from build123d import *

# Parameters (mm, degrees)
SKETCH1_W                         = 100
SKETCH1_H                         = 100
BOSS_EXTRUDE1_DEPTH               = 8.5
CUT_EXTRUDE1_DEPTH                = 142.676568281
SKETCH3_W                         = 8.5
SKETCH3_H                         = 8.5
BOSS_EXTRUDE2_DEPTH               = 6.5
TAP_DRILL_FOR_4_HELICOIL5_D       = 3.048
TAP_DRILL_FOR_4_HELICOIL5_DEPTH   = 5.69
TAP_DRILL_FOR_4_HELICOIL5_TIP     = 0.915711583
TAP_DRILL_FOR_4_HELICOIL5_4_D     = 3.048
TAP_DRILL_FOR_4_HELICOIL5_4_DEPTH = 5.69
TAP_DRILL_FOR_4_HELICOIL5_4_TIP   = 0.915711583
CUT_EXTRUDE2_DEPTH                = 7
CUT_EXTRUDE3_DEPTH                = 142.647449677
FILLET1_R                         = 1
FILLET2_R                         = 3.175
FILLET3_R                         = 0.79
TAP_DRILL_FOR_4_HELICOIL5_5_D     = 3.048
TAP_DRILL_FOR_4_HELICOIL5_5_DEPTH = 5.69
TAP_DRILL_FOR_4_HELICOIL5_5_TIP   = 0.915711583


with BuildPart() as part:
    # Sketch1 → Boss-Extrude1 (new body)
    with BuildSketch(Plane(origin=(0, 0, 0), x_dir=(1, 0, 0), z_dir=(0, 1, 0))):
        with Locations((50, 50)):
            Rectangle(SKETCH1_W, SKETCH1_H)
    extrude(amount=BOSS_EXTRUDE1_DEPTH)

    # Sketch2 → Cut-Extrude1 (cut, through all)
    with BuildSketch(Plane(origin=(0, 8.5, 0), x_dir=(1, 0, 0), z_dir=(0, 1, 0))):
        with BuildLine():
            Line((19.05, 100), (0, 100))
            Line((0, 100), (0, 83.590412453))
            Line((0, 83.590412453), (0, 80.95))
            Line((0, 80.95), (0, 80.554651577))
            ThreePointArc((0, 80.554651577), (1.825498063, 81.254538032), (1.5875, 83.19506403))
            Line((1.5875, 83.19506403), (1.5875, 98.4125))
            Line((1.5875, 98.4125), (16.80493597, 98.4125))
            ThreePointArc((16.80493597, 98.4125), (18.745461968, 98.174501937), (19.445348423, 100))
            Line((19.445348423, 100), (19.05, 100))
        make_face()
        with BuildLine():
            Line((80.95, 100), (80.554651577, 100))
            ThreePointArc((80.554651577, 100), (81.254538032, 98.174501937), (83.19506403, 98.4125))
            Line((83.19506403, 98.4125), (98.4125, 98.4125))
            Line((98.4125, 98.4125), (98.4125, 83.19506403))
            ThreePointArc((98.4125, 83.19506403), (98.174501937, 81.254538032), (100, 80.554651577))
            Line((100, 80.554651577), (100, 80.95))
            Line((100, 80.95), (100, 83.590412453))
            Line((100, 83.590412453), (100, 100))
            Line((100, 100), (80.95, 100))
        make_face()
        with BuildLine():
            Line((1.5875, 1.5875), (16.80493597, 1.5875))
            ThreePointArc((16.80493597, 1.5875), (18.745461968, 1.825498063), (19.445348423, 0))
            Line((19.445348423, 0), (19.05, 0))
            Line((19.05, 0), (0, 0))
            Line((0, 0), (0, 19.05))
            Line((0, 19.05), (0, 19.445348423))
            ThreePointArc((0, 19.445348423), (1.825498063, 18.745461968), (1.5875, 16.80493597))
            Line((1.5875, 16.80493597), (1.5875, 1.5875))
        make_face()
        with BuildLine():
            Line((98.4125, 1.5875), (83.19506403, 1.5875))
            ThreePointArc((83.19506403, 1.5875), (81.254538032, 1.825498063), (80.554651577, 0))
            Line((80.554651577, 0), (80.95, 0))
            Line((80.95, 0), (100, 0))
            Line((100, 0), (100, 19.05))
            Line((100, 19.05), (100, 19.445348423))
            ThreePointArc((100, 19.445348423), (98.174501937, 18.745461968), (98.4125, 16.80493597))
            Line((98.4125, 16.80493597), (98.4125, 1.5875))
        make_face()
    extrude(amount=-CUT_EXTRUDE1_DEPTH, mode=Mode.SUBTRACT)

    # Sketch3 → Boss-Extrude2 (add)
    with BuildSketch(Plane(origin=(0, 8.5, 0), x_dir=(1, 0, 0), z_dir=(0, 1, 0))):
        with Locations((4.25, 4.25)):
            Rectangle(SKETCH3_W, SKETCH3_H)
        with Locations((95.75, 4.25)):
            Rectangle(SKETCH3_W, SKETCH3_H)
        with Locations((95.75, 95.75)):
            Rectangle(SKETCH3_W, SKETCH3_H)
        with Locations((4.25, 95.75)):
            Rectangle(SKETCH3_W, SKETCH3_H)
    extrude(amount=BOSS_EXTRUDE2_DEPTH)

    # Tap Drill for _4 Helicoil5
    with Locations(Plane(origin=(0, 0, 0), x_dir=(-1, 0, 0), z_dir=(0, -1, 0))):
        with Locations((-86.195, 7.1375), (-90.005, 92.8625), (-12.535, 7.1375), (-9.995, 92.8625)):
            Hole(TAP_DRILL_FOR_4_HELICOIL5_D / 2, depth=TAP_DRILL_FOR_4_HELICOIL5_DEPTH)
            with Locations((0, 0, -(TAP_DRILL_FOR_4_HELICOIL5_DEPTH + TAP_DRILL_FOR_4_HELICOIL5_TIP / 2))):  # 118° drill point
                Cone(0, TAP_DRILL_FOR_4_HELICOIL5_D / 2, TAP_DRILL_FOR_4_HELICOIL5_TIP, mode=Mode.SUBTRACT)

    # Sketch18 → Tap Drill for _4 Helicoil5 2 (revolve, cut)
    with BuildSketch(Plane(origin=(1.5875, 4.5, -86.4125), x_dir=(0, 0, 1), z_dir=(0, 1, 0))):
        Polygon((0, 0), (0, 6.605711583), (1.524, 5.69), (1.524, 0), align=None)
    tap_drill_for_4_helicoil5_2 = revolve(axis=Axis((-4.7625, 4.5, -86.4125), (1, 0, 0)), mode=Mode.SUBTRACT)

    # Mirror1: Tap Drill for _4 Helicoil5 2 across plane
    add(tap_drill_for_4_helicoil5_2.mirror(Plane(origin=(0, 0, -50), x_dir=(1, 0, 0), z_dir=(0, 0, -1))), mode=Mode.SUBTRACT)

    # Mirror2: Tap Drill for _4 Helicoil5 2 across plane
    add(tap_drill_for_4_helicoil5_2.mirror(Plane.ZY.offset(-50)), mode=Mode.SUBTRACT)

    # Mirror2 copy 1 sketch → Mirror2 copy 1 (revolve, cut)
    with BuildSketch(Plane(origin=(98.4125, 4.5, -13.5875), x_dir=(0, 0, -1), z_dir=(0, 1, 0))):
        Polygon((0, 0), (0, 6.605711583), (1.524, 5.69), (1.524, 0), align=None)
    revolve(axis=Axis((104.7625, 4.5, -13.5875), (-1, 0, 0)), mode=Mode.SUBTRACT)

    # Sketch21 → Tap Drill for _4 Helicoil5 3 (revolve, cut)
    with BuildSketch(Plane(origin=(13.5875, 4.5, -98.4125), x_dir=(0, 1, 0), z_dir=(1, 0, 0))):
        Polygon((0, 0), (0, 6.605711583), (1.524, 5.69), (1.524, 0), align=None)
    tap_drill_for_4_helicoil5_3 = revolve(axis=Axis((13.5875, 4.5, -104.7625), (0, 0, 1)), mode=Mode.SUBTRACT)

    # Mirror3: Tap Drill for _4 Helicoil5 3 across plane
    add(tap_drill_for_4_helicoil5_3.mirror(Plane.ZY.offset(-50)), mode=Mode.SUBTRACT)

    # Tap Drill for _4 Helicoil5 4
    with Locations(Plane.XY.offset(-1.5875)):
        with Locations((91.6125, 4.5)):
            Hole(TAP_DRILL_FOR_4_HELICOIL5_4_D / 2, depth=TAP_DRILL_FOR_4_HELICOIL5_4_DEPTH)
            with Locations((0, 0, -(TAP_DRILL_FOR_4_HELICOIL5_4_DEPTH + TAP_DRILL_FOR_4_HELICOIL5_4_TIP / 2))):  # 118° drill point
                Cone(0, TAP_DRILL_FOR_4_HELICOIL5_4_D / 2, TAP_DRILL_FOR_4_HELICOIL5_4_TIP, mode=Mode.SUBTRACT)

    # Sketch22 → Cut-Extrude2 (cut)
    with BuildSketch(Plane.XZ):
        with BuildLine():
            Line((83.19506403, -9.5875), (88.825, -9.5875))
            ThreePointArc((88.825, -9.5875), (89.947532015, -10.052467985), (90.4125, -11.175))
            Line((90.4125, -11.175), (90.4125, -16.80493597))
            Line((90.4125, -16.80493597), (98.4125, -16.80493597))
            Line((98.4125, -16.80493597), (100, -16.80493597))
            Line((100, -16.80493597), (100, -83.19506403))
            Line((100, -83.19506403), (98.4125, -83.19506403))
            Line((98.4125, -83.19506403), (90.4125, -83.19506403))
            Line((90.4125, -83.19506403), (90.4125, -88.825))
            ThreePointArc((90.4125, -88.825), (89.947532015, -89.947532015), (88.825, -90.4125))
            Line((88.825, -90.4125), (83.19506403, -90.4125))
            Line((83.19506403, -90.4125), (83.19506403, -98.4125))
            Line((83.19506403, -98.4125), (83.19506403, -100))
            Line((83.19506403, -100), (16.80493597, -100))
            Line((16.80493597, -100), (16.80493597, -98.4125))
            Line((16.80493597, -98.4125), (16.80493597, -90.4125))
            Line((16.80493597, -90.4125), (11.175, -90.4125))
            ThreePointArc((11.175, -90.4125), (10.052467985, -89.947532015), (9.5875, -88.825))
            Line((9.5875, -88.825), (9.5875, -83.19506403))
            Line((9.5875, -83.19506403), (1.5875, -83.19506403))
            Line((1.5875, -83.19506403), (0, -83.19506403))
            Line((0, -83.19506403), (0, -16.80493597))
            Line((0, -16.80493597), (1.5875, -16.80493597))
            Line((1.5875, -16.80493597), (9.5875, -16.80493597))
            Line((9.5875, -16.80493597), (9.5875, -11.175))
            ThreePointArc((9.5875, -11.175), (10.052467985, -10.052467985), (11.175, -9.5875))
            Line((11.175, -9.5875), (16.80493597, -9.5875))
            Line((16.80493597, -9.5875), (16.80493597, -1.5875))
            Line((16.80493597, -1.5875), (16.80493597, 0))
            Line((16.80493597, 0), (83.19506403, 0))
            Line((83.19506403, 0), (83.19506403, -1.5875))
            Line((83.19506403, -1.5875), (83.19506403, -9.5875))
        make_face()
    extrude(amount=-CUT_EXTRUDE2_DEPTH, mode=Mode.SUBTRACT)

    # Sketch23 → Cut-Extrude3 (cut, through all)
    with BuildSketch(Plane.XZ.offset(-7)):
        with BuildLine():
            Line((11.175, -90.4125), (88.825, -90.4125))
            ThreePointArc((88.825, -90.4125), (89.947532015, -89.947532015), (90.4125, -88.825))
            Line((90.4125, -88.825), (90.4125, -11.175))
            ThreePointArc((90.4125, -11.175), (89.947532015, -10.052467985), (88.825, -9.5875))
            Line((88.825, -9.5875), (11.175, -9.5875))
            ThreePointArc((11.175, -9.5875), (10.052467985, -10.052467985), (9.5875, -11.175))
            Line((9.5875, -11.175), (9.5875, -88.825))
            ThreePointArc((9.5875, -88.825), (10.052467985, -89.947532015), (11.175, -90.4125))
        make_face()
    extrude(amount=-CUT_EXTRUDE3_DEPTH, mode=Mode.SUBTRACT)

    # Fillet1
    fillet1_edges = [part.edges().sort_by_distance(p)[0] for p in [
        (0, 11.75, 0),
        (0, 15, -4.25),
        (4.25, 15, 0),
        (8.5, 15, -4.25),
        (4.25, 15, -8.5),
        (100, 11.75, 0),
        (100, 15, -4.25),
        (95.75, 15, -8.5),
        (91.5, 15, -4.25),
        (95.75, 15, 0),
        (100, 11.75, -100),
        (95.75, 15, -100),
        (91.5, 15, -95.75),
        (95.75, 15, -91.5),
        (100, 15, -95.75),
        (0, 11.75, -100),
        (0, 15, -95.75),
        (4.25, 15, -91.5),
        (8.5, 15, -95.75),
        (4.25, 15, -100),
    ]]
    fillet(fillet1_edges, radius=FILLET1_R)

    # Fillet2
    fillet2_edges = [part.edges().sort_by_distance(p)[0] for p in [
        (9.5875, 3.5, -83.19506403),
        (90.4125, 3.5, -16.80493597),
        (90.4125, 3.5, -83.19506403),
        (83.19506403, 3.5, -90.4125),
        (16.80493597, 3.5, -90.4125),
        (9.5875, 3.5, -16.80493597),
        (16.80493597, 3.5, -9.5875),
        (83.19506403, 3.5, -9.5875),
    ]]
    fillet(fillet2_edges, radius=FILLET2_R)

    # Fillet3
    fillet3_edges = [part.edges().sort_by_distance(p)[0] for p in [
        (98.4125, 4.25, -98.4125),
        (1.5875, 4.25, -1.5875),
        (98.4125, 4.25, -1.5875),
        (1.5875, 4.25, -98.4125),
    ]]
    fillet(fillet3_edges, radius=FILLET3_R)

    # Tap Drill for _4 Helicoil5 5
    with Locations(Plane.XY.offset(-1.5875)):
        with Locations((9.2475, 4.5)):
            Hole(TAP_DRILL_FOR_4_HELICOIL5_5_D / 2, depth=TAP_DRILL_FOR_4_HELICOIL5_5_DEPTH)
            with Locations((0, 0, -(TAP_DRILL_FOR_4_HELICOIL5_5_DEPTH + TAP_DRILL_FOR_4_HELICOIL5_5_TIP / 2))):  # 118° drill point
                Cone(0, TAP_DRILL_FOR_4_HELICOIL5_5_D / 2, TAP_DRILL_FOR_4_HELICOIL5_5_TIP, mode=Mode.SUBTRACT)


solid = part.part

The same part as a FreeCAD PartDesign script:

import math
import FreeCAD as App
import Part
import Sketcher
Q = App.Units.Quantity


def edges_at(feature, points):
    """Names of the edges that pass closest to the given points."""
    edges = feature.Shape.Edges
    near = lambda p: min(range(len(edges)), key=lambda i: edges[i].distToShape(Part.Vertex(*p))[0])
    return sorted({f"Edge{near(p) + 1}" for p in points})


def add_polygon(sketch, points):
    """Adds a closed chain of lines whose ends are joined by coincident constraints."""
    first, n = sketch.GeometryCount, len(points)
    for a, b in zip(points, points[1:] + points[:1]):
        sketch.addGeometry(Part.LineSegment(App.Vector(*a, 0), App.Vector(*b, 0)), False)
    for i in range(n):
        sketch.addConstraint(Sketcher.Constraint("Coincident", first + i, 2, first + (i + 1) % n, 1))

doc = App.newDocument("Part")
body = doc.addObject("PartDesign::Body", "Body")

# Sketch on XZ plane
sketch1 = doc.addObject("Sketcher::SketchObject", "Sketch")
body.addObject(sketch1)
sketch1.AttachmentSupport = (doc.XZ_Plane, [""])
sketch1.MapMode = "FlatFace"
add_polygon(sketch1, [(0, -100), (0, 0), (100, 0), (100, -100)])  # lines 0-3
sketch1.addConstraint(Sketcher.Constraint("Vertical", 0))
sketch1.addConstraint(Sketcher.Constraint("Horizontal", 1))
sketch1.addConstraint(Sketcher.Constraint("Vertical", 2))
sketch1.addConstraint(Sketcher.Constraint("Horizontal", 3))
sketch1.addConstraint(Sketcher.Constraint("Coincident", 0, 2, -1, 1))
sketch1.addConstraint(Sketcher.Constraint("Equal", 3, 0))
sketch1.addConstraint(Sketcher.Constraint("DistanceX", 1, 1, 1, 2, 100.0))
pad1 = doc.addObject("PartDesign::Pad", "Pad")
body.addObject(pad1)
pad1.Profile = sketch1
pad1.Length = 8.5
pad1.Reversed = True

# Sketch on XZ plane
sketch2 = doc.addObject("Sketcher::SketchObject", "Sketch001")
body.addObject(sketch2)
sketch2.AttachmentSupport = (doc.XZ_Plane, [""])
sketch2.MapMode = "FlatFace"
sketch2.AttachmentOffset = App.Placement(App.Vector(0, 0, -8.5), App.Rotation())
sketch2.addGeometry(Part.LineSegment(App.Vector(0, -100, 0), App.Vector(0, -80.6, 0)), False)
sketch2.addGeometry(Part.ArcOfCircle(Part.Circle(App.Vector(0.5, -82.1, 0), App.Vector(0, 0, 1), 1.6), math.radians(-45), math.radians(107)), False)
sketch2.addGeometry(Part.LineSegment(App.Vector(1.6, -83.2, 0), App.Vector(1.6, -98.4, 0)), False)
sketch2.addGeometry(Part.LineSegment(App.Vector(1.6, -98.4, 0), App.Vector(16.8, -98.4, 0)), False)
sketch2.addGeometry(Part.ArcOfCircle(Part.Circle(App.Vector(17.9, -99.5, 0), App.Vector(0, 0, 1), 1.6), math.radians(-17), math.radians(135)), False)
sketch2.addGeometry(Part.LineSegment(App.Vector(19.4, -100, 0), App.Vector(0, -100, 0)), False)
sketch2.addGeometry(Part.ArcOfCircle(Part.Circle(App.Vector(82.1, -99.5, 0), App.Vector(0, 0, 1), 1.6), math.radians(45), math.radians(197)), False)
sketch2.addGeometry(Part.LineSegment(App.Vector(83.2, -98.4, 0), App.Vector(98.4, -98.4, 0)), False)
sketch2.addGeometry(Part.LineSegment(App.Vector(98.4, -98.4, 0), App.Vector(98.4, -83.2, 0)), False)
sketch2.addGeometry(Part.ArcOfCircle(Part.Circle(App.Vector(99.5, -82.1, 0), App.Vector(0, 0, 1), 1.6), math.radians(73), math.radians(225)), False)
sketch2.addGeometry(Part.LineSegment(App.Vector(100, -80.6, 0), App.Vector(100, -100, 0)), False)
sketch2.addGeometry(Part.LineSegment(App.Vector(100, -100, 0), App.Vector(80.6, -100, 0)), False)
sketch2.addGeometry(Part.LineSegment(App.Vector(16.8, -1.6, 0), App.Vector(1.6, -1.6, 0)), False)
sketch2.addGeometry(Part.LineSegment(App.Vector(1.6, -1.6, 0), App.Vector(1.6, -16.8, 0)), False)
sketch2.addGeometry(Part.ArcOfCircle(Part.Circle(App.Vector(0.5, -17.9, 0), App.Vector(0, 0, 1), 1.6), math.radians(-107), math.radians(45)), False)
sketch2.addGeometry(Part.LineSegment(App.Vector(0, -19.4, 0), App.Vector(0, 0, 0)), False)
sketch2.addGeometry(Part.LineSegment(App.Vector(0, 0, 0), App.Vector(19.4, 0, 0)), False)
sketch2.addGeometry(Part.ArcOfCircle(Part.Circle(App.Vector(17.9, -0.5, 0), App.Vector(0, 0, 1), 1.6), math.radians(-135), math.radians(17)), False)
sketch2.addGeometry(Part.LineSegment(App.Vector(98.4, -1.6, 0), App.Vector(83.2, -1.6, 0)), False)
sketch2.addGeometry(Part.ArcOfCircle(Part.Circle(App.Vector(82.1, -0.5, 0), App.Vector(0, 0, 1), 1.6), math.radians(163), math.radians(315)), False)
sketch2.addGeometry(Part.LineSegment(App.Vector(80.6, 0, 0), App.Vector(100, 0, 0)), False)
sketch2.addGeometry(Part.LineSegment(App.Vector(100, 0, 0), App.Vector(100, -19.4, 0)), False)
sketch2.addGeometry(Part.ArcOfCircle(Part.Circle(App.Vector(99.5, -17.9, 0), App.Vector(0, 0, 1), 1.6), math.radians(135), math.radians(287)), False)
sketch2.addGeometry(Part.LineSegment(App.Vector(98.4, -16.8, 0), App.Vector(98.4, -1.6, 0)), False)
sketch2.addConstraint(Sketcher.Constraint("Coincident", 0, 2, 1, 2))
sketch2.addConstraint(Sketcher.Constraint("Coincident", 1, 1, 2, 1))
sketch2.addConstraint(Sketcher.Constraint("Coincident", 2, 2, 3, 1))
sketch2.addConstraint(Sketcher.Constraint("Coincident", 3, 2, 4, 2))
sketch2.addConstraint(Sketcher.Constraint("Coincident", 4, 1, 5, 1))
sketch2.addConstraint(Sketcher.Constraint("Coincident", 5, 2, 0, 1))
sketch2.addConstraint(Sketcher.Constraint("Coincident", 6, 1, 7, 1))
sketch2.addConstraint(Sketcher.Constraint("Coincident", 7, 2, 8, 1))
sketch2.addConstraint(Sketcher.Constraint("Coincident", 8, 2, 9, 2))
sketch2.addConstraint(Sketcher.Constraint("Coincident", 9, 1, 10, 1))
sketch2.addConstraint(Sketcher.Constraint("Coincident", 10, 2, 11, 1))
sketch2.addConstraint(Sketcher.Constraint("Coincident", 11, 2, 6, 2))
sketch2.addConstraint(Sketcher.Constraint("Coincident", 12, 2, 13, 1))
sketch2.addConstraint(Sketcher.Constraint("Coincident", 13, 2, 14, 2))
sketch2.addConstraint(Sketcher.Constraint("Coincident", 14, 1, 15, 1))
sketch2.addConstraint(Sketcher.Constraint("Coincident", 15, 2, 16, 1))
sketch2.addConstraint(Sketcher.Constraint("Coincident", 16, 2, 17, 2))
sketch2.addConstraint(Sketcher.Constraint("Coincident", 17, 1, 12, 1))
sketch2.addConstraint(Sketcher.Constraint("Coincident", 18, 2, 19, 2))
sketch2.addConstraint(Sketcher.Constraint("Coincident", 19, 1, 20, 1))
sketch2.addConstraint(Sketcher.Constraint("Coincident", 20, 2, 21, 1))
sketch2.addConstraint(Sketcher.Constraint("Coincident", 21, 2, 22, 2))
sketch2.addConstraint(Sketcher.Constraint("Coincident", 22, 1, 23, 1))
sketch2.addConstraint(Sketcher.Constraint("Coincident", 23, 2, 18, 1))
sketch2.addConstraint(Sketcher.Constraint("Vertical", 0))
sketch2.addConstraint(Sketcher.Constraint("Vertical", 2))
sketch2.addConstraint(Sketcher.Constraint("Horizontal", 3))
sketch2.addConstraint(Sketcher.Constraint("Horizontal", 5))
sketch2.addConstraint(Sketcher.Constraint("Horizontal", 7))
sketch2.addConstraint(Sketcher.Constraint("Vertical", 8))
sketch2.addConstraint(Sketcher.Constraint("Vertical", 10))
sketch2.addConstraint(Sketcher.Constraint("Horizontal", 11))
sketch2.addConstraint(Sketcher.Constraint("Horizontal", 12))
sketch2.addConstraint(Sketcher.Constraint("Vertical", 13))
sketch2.addConstraint(Sketcher.Constraint("Vertical", 15))
sketch2.addConstraint(Sketcher.Constraint("Horizontal", 16))
sketch2.addConstraint(Sketcher.Constraint("Horizontal", 18))
sketch2.addConstraint(Sketcher.Constraint("Horizontal", 20))
sketch2.addConstraint(Sketcher.Constraint("Vertical", 21))
sketch2.addConstraint(Sketcher.Constraint("Vertical", 23))
sketch2.addConstraint(Sketcher.Constraint("Coincident", 15, 2, -1, 1))
sketch2.addConstraint(Sketcher.Constraint("Equal", 1, 4))
sketch2.addConstraint(Sketcher.Constraint("Equal", 4, 6))
sketch2.addConstraint(Sketcher.Constraint("Equal", 6, 9))
sketch2.addConstraint(Sketcher.Constraint("Equal", 9, 14))
sketch2.addConstraint(Sketcher.Constraint("Equal", 14, 17))
sketch2.addConstraint(Sketcher.Constraint("Equal", 17, 19))
sketch2.addConstraint(Sketcher.Constraint("Equal", 19, 22))
sketch2.addConstraint(Sketcher.Constraint("PointOnObject", 0, 2, -2))
sketch2.addConstraint(Sketcher.Constraint("PointOnObject", 19, 1, -1))
sketch2.addConstraint(Sketcher.Constraint("Horizontal", 4, 3, 6, 3))
sketch2.addConstraint(Sketcher.Constraint("Horizontal", 1, 3, 9, 3))
sketch2.addConstraint(Sketcher.Constraint("Horizontal", 17, 3, 19, 3))
sketch2.addConstraint(Sketcher.Constraint("Horizontal", 14, 3, 22, 3))
sketch2.addConstraint(Sketcher.Constraint("Horizontal", 3, 2, 6, 1))
sketch2.addConstraint(Sketcher.Constraint("Horizontal", 1, 1, 8, 2))
sketch2.addConstraint(Sketcher.Constraint("Horizontal", 0, 2, 9, 1))
sketch2.addConstraint(Sketcher.Constraint("Horizontal", 5, 2, 10, 2))
sketch2.addConstraint(Sketcher.Constraint("Horizontal", 17, 1, 18, 2))
sketch2.addConstraint(Sketcher.Constraint("Horizontal", 14, 1, 21, 2))
sketch2.addConstraint(Sketcher.Constraint("Horizontal", 13, 2, 22, 1))
sketch2.addConstraint(Sketcher.Constraint("Vertical", 1, 3, 14, 3))
sketch2.addConstraint(Sketcher.Constraint("Vertical", 4, 3, 17, 3))
sketch2.addConstraint(Sketcher.Constraint("Vertical", 6, 3, 19, 3))
sketch2.addConstraint(Sketcher.Constraint("Vertical", 9, 3, 22, 3))
sketch2.addConstraint(Sketcher.Constraint("Vertical", 2, 2, 12, 2))
sketch2.addConstraint(Sketcher.Constraint("Vertical", 4, 1, 16, 2))
sketch2.addConstraint(Sketcher.Constraint("Vertical", 3, 2, 17, 1))
sketch2.addConstraint(Sketcher.Constraint("Equal", 3, 7))
sketch2.addConstraint(Sketcher.Constraint("Equal", 20, 0))
sketch2.addConstraint(Sketcher.Constraint("Equal", 18, 2))
sketch2.addConstraint(Sketcher.Constraint("Equal", 8, 13))
sketch2.addConstraint(Sketcher.Constraint("DistanceY", 4, 1, -1, 1, 100.0))
sketch2.addConstraint(Sketcher.Constraint("DistanceX", -1, 1, 9, 1, 100.0))
sketch2.addConstraint(Sketcher.Constraint("Radius", 1, 1.5875))
sketch2.addConstraint(Sketcher.Constraint("DistanceX", 5, 2, 5, 1, 19.445348))
sketch2.addConstraint(Sketcher.Constraint("DistanceX", -1, 1, 1, 1, 1.5875))
sketch2.addConstraint(Sketcher.Constraint("DistanceY", 2, 2, -1, 1, 98.4125))
sketch2.addConstraint(Sketcher.Constraint("DistanceX", 1, 3, 4, 3, 17.4625))
pocket1 = doc.addObject("PartDesign::Pocket", "Pocket")
body.addObject(pocket1)
pocket1.Profile = sketch2
pocket1.Type = "ThroughAll"
pocket1.Reversed = True

# Sketch on XZ plane
sketch3 = doc.addObject("Sketcher::SketchObject", "Sketch002")
body.addObject(sketch3)
sketch3.AttachmentSupport = (doc.XZ_Plane, [""])
sketch3.MapMode = "FlatFace"
sketch3.AttachmentOffset = App.Placement(App.Vector(0, 0, -8.5), App.Rotation())
add_polygon(sketch3, [(0, -8), (0, 0), (8, 0), (8, -8)])  # lines 0-3
add_polygon(sketch3, [(92, -8), (92, 0), (100, 0), (100, -8)])  # lines 4-7
add_polygon(sketch3, [(92, -100), (92, -92), (100, -92), (100, -100)])  # lines 8-11
add_polygon(sketch3, [(0, -100), (0, -92), (8, -92), (8, -100)])  # lines 12-15
sketch3.addConstraint(Sketcher.Constraint("Vertical", 0))
sketch3.addConstraint(Sketcher.Constraint("Horizontal", 1))
sketch3.addConstraint(Sketcher.Constraint("Vertical", 2))
sketch3.addConstraint(Sketcher.Constraint("Horizontal", 3))
sketch3.addConstraint(Sketcher.Constraint("Vertical", 4))
sketch3.addConstraint(Sketcher.Constraint("Horizontal", 5))
sketch3.addConstraint(Sketcher.Constraint("Vertical", 6))
sketch3.addConstraint(Sketcher.Constraint("Horizontal", 7))
sketch3.addConstraint(Sketcher.Constraint("Vertical", 8))
sketch3.addConstraint(Sketcher.Constraint("Horizontal", 9))
sketch3.addConstraint(Sketcher.Constraint("Vertical", 10))
sketch3.addConstraint(Sketcher.Constraint("Horizontal", 11))
sketch3.addConstraint(Sketcher.Constraint("Vertical", 12))
sketch3.addConstraint(Sketcher.Constraint("Horizontal", 13))
sketch3.addConstraint(Sketcher.Constraint("Vertical", 14))
sketch3.addConstraint(Sketcher.Constraint("Horizontal", 15))
sketch3.addConstraint(Sketcher.Constraint("Coincident", 0, 2, -1, 1))
sketch3.addConstraint(Sketcher.Constraint("PointOnObject", 4, 2, -1))
sketch3.addConstraint(Sketcher.Constraint("PointOnObject", 12, 2, -2))
sketch3.addConstraint(Sketcher.Constraint("Horizontal", 3, 2, 6, 2))
sketch3.addConstraint(Sketcher.Constraint("Horizontal", 9, 2, 12, 2))
sketch3.addConstraint(Sketcher.Constraint("Horizontal", 11, 2, 14, 2))
sketch3.addConstraint(Sketcher.Constraint("Vertical", 7, 2, 8, 2))
sketch3.addConstraint(Sketcher.Constraint("Vertical", 6, 2, 9, 2))
sketch3.addConstraint(Sketcher.Constraint("Vertical", 2, 2, 13, 2))
sketch3.addConstraint(Sketcher.Constraint("Equal", 3, 5))
sketch3.addConstraint(Sketcher.Constraint("Equal", 15, 0))
sketch3.addConstraint(Sketcher.Constraint("Equal", 6, 8))
sketch3.addConstraint(Sketcher.Constraint("DistanceX", 1, 1, 1, 2, 8.5))
sketch3.addConstraint(Sketcher.Constraint("DistanceX", -1, 1, 5, 2, 100.0))
sketch3.addConstraint(Sketcher.Constraint("DistanceY", 10, 2, -1, 1, 100.0))
pad2 = doc.addObject("PartDesign::Pad", "Pad001")
body.addObject(pad2)
pad2.Profile = sketch3
pad2.Length = 6.5
pad2.Reversed = True

# Sketch on XZ plane
sketch4 = doc.addObject("Sketcher::SketchObject", "Sketch003")
body.addObject(sketch4)
sketch4.AttachmentSupport = (doc.XZ_Plane, [""])
sketch4.MapMode = "FlatFace"
sketch4.addGeometry(Part.Circle(App.Vector(86.2, -7.1, 0), App.Vector(0, 0, 1), 1.5), False)
sketch4.addGeometry(Part.Circle(App.Vector(90, -92.9, 0), App.Vector(0, 0, 1), 1.5), False)
sketch4.addGeometry(Part.Circle(App.Vector(12.5, -7.1, 0), App.Vector(0, 0, 1), 1.5), False)
sketch4.addGeometry(Part.Circle(App.Vector(10, -92.9, 0), App.Vector(0, 0, 1), 1.5), False)
sketch4.addConstraint(Sketcher.Constraint("Equal", 0, 1))
sketch4.addConstraint(Sketcher.Constraint("Equal", 1, 2))
sketch4.addConstraint(Sketcher.Constraint("Equal", 2, 3))
sketch4.addConstraint(Sketcher.Constraint("Horizontal", 0, 3, 2, 3))
sketch4.addConstraint(Sketcher.Constraint("Horizontal", 1, 3, 3, 3))
sketch4.addConstraint(Sketcher.Constraint("Diameter", 0, 3.048))
sketch4.addConstraint(Sketcher.Constraint("DistanceX", 3, 3, 0, 3, 76.2))
sketch4.addConstraint(Sketcher.Constraint("DistanceX", 0, 3, 1, 3, 3.81))
sketch4.addConstraint(Sketcher.Constraint("DistanceX", 2, 3, 0, 3, 73.66))
sketch4.addConstraint(Sketcher.Constraint("DistanceX", -1, 1, 0, 3, 86.195))
sketch4.addConstraint(Sketcher.Constraint("DistanceY", 1, 3, 0, 3, 85.725))
sketch4.addConstraint(Sketcher.Constraint("DistanceY", 0, 3, -1, 1, 7.1375))
doc.recompute()
hole = doc.addObject("PartDesign::Hole", "Hole")
body.addObject(hole)
hole.Profile = sketch4
hole.ThreadType = "None"
hole.Diameter = 3.048
hole.DepthType = "Dimension"
hole.Depth = 5.69
hole.DrillPoint = "Angled"
hole.DrillPointAngle = 118

# Sketch on XZ plane
sketch5 = doc.addObject("Sketcher::SketchObject", "Sketch004")
body.addObject(sketch5)
sketch5.AttachmentSupport = (doc.XZ_Plane, [""])
sketch5.MapMode = "FlatFace"
sketch5.AttachmentOffset = App.Placement(App.Vector(0, 0, -4.5), App.Rotation())
add_polygon(sketch5, [(8.2, -86.4), (1.6, -86.4), (1.6, -84.9), (7.3, -84.9)])  # lines 0-3
sketch5.addGeometry(Part.LineSegment(App.Vector(1.6, -86.4, 0), App.Vector(8.2, -86.4, 0)), True)  # axis
sketch5.addConstraint(Sketcher.Constraint("Horizontal", 0))
sketch5.addConstraint(Sketcher.Constraint("Vertical", 1))
sketch5.addConstraint(Sketcher.Constraint("Horizontal", 2))
sketch5.addConstraint(Sketcher.Constraint("Horizontal", 4))
sketch5.addConstraint(Sketcher.Constraint("Coincident", 4, 1, 0, 2))
sketch5.addConstraint(Sketcher.Constraint("Equal", 0, 4))
sketch5.addConstraint(Sketcher.Constraint("Angle", 3, Q("-59 deg")))
sketch5.addConstraint(Sketcher.Constraint("DistanceX", 2, 1, 2, 2, 5.69))
sketch5.addConstraint(Sketcher.Constraint("DistanceY", 1, 1, 1, 2, 1.524))
sketch5.addConstraint(Sketcher.Constraint("DistanceX", -1, 1, 0, 2, 1.5875))
sketch5.addConstraint(Sketcher.Constraint("DistanceY", 0, 2, -1, 1, 86.4125))
groove = doc.addObject("PartDesign::Groove", "Groove")
body.addObject(groove)
groove.Profile = sketch5
groove.ReferenceAxis = (sketch5, ["Axis0"])
groove.Angle = 360
doc.recompute()

datumplane = doc.addObject("PartDesign::Plane", "DatumPlane")
body.addObject(datumplane)
datumplane.AttachmentSupport = (doc.XY_Plane, [""])
datumplane.MapMode = "FlatFace"
datumplane.AttachmentOffset = App.Placement(App.Vector(0, 0, -50), App.Rotation())
mirrored = doc.addObject("PartDesign::Mirrored", "Mirrored")
body.addObject(mirrored)
mirrored.Originals = [groove]
mirrored.MirrorPlane = (datumplane, [""])
body.Tip = mirrored
doc.recompute()

datumplane2 = doc.addObject("PartDesign::Plane", "DatumPlane001")
body.addObject(datumplane2)
datumplane2.AttachmentSupport = (doc.YZ_Plane, [""])
datumplane2.MapMode = "FlatFace"
datumplane2.AttachmentOffset = App.Placement(App.Vector(0, 0, 50), App.Rotation())
mirrored2 = doc.addObject("PartDesign::Mirrored", "Mirrored001")
body.addObject(mirrored2)
mirrored2.Originals = [groove]
mirrored2.MirrorPlane = (datumplane2, [""])
body.Tip = mirrored2

# Sketch on XZ plane
sketch6 = doc.addObject("Sketcher::SketchObject", "Sketch005")
body.addObject(sketch6)
sketch6.AttachmentSupport = (doc.XZ_Plane, [""])
sketch6.MapMode = "FlatFace"
sketch6.AttachmentOffset = App.Placement(App.Vector(0, 0, -4.5), App.Rotation())
add_polygon(sketch6, [(91.8, -13.6), (98.4, -13.6), (98.4, -15.1), (92.7, -15.1)])  # lines 0-3
sketch6.addGeometry(Part.LineSegment(App.Vector(98.4, -13.6, 0), App.Vector(91.8, -13.6, 0)), True)  # axis
sketch6.addConstraint(Sketcher.Constraint("Horizontal", 0))
sketch6.addConstraint(Sketcher.Constraint("Vertical", 1))
sketch6.addConstraint(Sketcher.Constraint("Horizontal", 2))
sketch6.addConstraint(Sketcher.Constraint("Horizontal", 4))
sketch6.addConstraint(Sketcher.Constraint("Coincident", 4, 1, 0, 2))
sketch6.addConstraint(Sketcher.Constraint("Equal", 0, 4))
sketch6.addConstraint(Sketcher.Constraint("Angle", 3, Q("121 deg")))
sketch6.addConstraint(Sketcher.Constraint("DistanceX", 2, 2, 2, 1, 5.69))
sketch6.addConstraint(Sketcher.Constraint("DistanceY", 1, 2, 1, 1, 1.524))
sketch6.addConstraint(Sketcher.Constraint("DistanceX", -1, 1, 0, 2, 98.4125))
sketch6.addConstraint(Sketcher.Constraint("DistanceY", 0, 2, -1, 1, 13.5875))
groove2 = doc.addObject("PartDesign::Groove", "Groove001")
body.addObject(groove2)
groove2.Profile = sketch6
groove2.ReferenceAxis = (sketch6, ["Axis0"])
groove2.Angle = 360

# Sketch on YZ plane
sketch7 = doc.addObject("Sketcher::SketchObject", "Sketch006")
body.addObject(sketch7)
sketch7.AttachmentSupport = (doc.YZ_Plane, [""])
sketch7.MapMode = "FlatFace"
sketch7.AttachmentOffset = App.Placement(App.Vector(0, 0, 13.5875), App.Rotation())
add_polygon(sketch7, [(4.5, -91.8), (4.5, -98.4), (6, -98.4), (6, -92.7)])  # lines 0-3
sketch7.addGeometry(Part.LineSegment(App.Vector(4.5, -98.4, 0), App.Vector(4.5, -91.8, 0)), True)  # axis
sketch7.addConstraint(Sketcher.Constraint("Vertical", 0))
sketch7.addConstraint(Sketcher.Constraint("Horizontal", 1))
sketch7.addConstraint(Sketcher.Constraint("Vertical", 2))
sketch7.addConstraint(Sketcher.Constraint("Vertical", 4))
sketch7.addConstraint(Sketcher.Constraint("Coincident", 4, 1, 0, 2))
sketch7.addConstraint(Sketcher.Constraint("Equal", 0, 4))
sketch7.addConstraint(Sketcher.Constraint("Angle", 3, Q("149 deg")))
sketch7.addConstraint(Sketcher.Constraint("DistanceY", 2, 1, 2, 2, 5.69))
sketch7.addConstraint(Sketcher.Constraint("DistanceX", -1, 1, 0, 2, 4.5))
sketch7.addConstraint(Sketcher.Constraint("DistanceX", 1, 1, 1, 2, 1.524))
sketch7.addConstraint(Sketcher.Constraint("DistanceY", 0, 2, -1, 1, 98.4125))
groove3 = doc.addObject("PartDesign::Groove", "Groove002")
body.addObject(groove3)
groove3.Profile = sketch7
groove3.ReferenceAxis = (sketch7, ["Axis0"])
groove3.Angle = 360
doc.recompute()

datumplane3 = doc.addObject("PartDesign::Plane", "DatumPlane002")
body.addObject(datumplane3)
datumplane3.AttachmentSupport = (doc.YZ_Plane, [""])
datumplane3.MapMode = "FlatFace"
datumplane3.AttachmentOffset = App.Placement(App.Vector(0, 0, 50), App.Rotation())
mirrored3 = doc.addObject("PartDesign::Mirrored", "Mirrored002")
body.addObject(mirrored3)
mirrored3.Originals = [groove3]
mirrored3.MirrorPlane = (datumplane3, [""])
body.Tip = mirrored3

# Sketch on XY plane
sketch8 = doc.addObject("Sketcher::SketchObject", "Sketch007")
body.addObject(sketch8)
sketch8.AttachmentSupport = (doc.XY_Plane, [""])
sketch8.MapMode = "FlatFace"
sketch8.AttachmentOffset = App.Placement(App.Vector(0, 0, -1.5875), App.Rotation())
sketch8.addGeometry(Part.Circle(App.Vector(91.6, 4.5, 0), App.Vector(0, 0, 1), 1.5), False)
sketch8.addConstraint(Sketcher.Constraint("Diameter", 0, 3.048))
sketch8.addConstraint(Sketcher.Constraint("DistanceY", -1, 1, 0, 3, 4.5))
sketch8.addConstraint(Sketcher.Constraint("DistanceX", -1, 1, 0, 3, 91.6125))
doc.recompute()
hole2 = doc.addObject("PartDesign::Hole", "Hole001")
body.addObject(hole2)
hole2.Profile = sketch8
hole2.ThreadType = "None"
hole2.Diameter = 3.048
hole2.DepthType = "Dimension"
hole2.Depth = 5.69
hole2.DrillPoint = "Angled"
hole2.DrillPointAngle = 118

# Sketch on XZ plane
sketch9 = doc.addObject("Sketcher::SketchObject", "Sketch008")
body.addObject(sketch9)
sketch9.AttachmentSupport = (doc.XZ_Plane, [""])
sketch9.MapMode = "FlatFace"
sketch9.addGeometry(Part.LineSegment(App.Vector(88.8, -9.6, 0), App.Vector(83.2, -9.6, 0)), False)
sketch9.addGeometry(Part.LineSegment(App.Vector(83.2, -9.6, 0), App.Vector(83.2, 0, 0)), False)
sketch9.addGeometry(Part.LineSegment(App.Vector(83.2, 0, 0), App.Vector(16.8, 0, 0)), False)
sketch9.addGeometry(Part.LineSegment(App.Vector(16.8, 0, 0), App.Vector(16.8, -9.6, 0)), False)
sketch9.addGeometry(Part.LineSegment(App.Vector(16.8, -9.6, 0), App.Vector(11.2, -9.6, 0)), False)
sketch9.addGeometry(Part.ArcOfCircle(Part.Circle(App.Vector(11.2, -11.2, 0), App.Vector(0, 0, 1), 1.6), math.radians(90), math.radians(180)), False)
sketch9.addGeometry(Part.LineSegment(App.Vector(9.6, -11.2, 0), App.Vector(9.6, -16.8, 0)), False)
sketch9.addGeometry(Part.LineSegment(App.Vector(9.6, -16.8, 0), App.Vector(0, -16.8, 0)), False)
sketch9.addGeometry(Part.LineSegment(App.Vector(0, -16.8, 0), App.Vector(0, -83.2, 0)), False)
sketch9.addGeometry(Part.LineSegment(App.Vector(0, -83.2, 0), App.Vector(9.6, -83.2, 0)), False)
sketch9.addGeometry(Part.LineSegment(App.Vector(9.6, -83.2, 0), App.Vector(9.6, -88.8, 0)), False)
sketch9.addGeometry(Part.ArcOfCircle(Part.Circle(App.Vector(11.2, -88.8, 0), App.Vector(0, 0, 1), 1.6), math.radians(180), math.radians(270)), False)
sketch9.addGeometry(Part.LineSegment(App.Vector(11.2, -90.4, 0), App.Vector(16.8, -90.4, 0)), False)
sketch9.addGeometry(Part.LineSegment(App.Vector(16.8, -90.4, 0), App.Vector(16.8, -100, 0)), False)
sketch9.addGeometry(Part.LineSegment(App.Vector(16.8, -100, 0), App.Vector(83.2, -100, 0)), False)
sketch9.addGeometry(Part.LineSegment(App.Vector(83.2, -100, 0), App.Vector(83.2, -90.4, 0)), False)
sketch9.addGeometry(Part.LineSegment(App.Vector(83.2, -90.4, 0), App.Vector(88.8, -90.4, 0)), False)
sketch9.addGeometry(Part.ArcOfCircle(Part.Circle(App.Vector(88.8, -88.8, 0), App.Vector(0, 0, 1), 1.6), math.radians(-90), math.radians(0)), False)
sketch9.addGeometry(Part.LineSegment(App.Vector(90.4, -88.8, 0), App.Vector(90.4, -83.2, 0)), False)
sketch9.addGeometry(Part.LineSegment(App.Vector(90.4, -83.2, 0), App.Vector(100, -83.2, 0)), False)
sketch9.addGeometry(Part.LineSegment(App.Vector(100, -83.2, 0), App.Vector(100, -16.8, 0)), False)
sketch9.addGeometry(Part.LineSegment(App.Vector(100, -16.8, 0), App.Vector(90.4, -16.8, 0)), False)
sketch9.addGeometry(Part.LineSegment(App.Vector(90.4, -16.8, 0), App.Vector(90.4, -11.2, 0)), False)
sketch9.addGeometry(Part.ArcOfCircle(Part.Circle(App.Vector(88.8, -11.2, 0), App.Vector(0, 0, 1), 1.6), math.radians(0), math.radians(90)), False)
sketch9.addConstraint(Sketcher.Constraint("Coincident", 0, 2, 1, 1))
sketch9.addConstraint(Sketcher.Constraint("Coincident", 1, 2, 2, 1))
sketch9.addConstraint(Sketcher.Constraint("Coincident", 2, 2, 3, 1))
sketch9.addConstraint(Sketcher.Constraint("Coincident", 3, 2, 4, 1))
sketch9.addConstraint(Sketcher.Constraint("Tangent", 4, 2, 5, 1))
sketch9.addConstraint(Sketcher.Constraint("Tangent", 5, 2, 6, 1))
sketch9.addConstraint(Sketcher.Constraint("Coincident", 6, 2, 7, 1))
sketch9.addConstraint(Sketcher.Constraint("Coincident", 7, 2, 8, 1))
sketch9.addConstraint(Sketcher.Constraint("Coincident", 8, 2, 9, 1))
sketch9.addConstraint(Sketcher.Constraint("Coincident", 9, 2, 10, 1))
sketch9.addConstraint(Sketcher.Constraint("Tangent", 10, 2, 11, 1))
sketch9.addConstraint(Sketcher.Constraint("Tangent", 11, 2, 12, 1))
sketch9.addConstraint(Sketcher.Constraint("Coincident", 12, 2, 13, 1))
sketch9.addConstraint(Sketcher.Constraint("Coincident", 13, 2, 14, 1))
sketch9.addConstraint(Sketcher.Constraint("Coincident", 14, 2, 15, 1))
sketch9.addConstraint(Sketcher.Constraint("Coincident", 15, 2, 16, 1))
sketch9.addConstraint(Sketcher.Constraint("Tangent", 16, 2, 17, 1))
sketch9.addConstraint(Sketcher.Constraint("Tangent", 17, 2, 18, 1))
sketch9.addConstraint(Sketcher.Constraint("Coincident", 18, 2, 19, 1))
sketch9.addConstraint(Sketcher.Constraint("Coincident", 19, 2, 20, 1))
sketch9.addConstraint(Sketcher.Constraint("Coincident", 20, 2, 21, 1))
sketch9.addConstraint(Sketcher.Constraint("Coincident", 21, 2, 22, 1))
sketch9.addConstraint(Sketcher.Constraint("Tangent", 22, 2, 23, 1))
sketch9.addConstraint(Sketcher.Constraint("Tangent", 23, 2, 0, 1))
sketch9.addConstraint(Sketcher.Constraint("Horizontal", 0))
sketch9.addConstraint(Sketcher.Constraint("Vertical", 1))
sketch9.addConstraint(Sketcher.Constraint("Horizontal", 2))
sketch9.addConstraint(Sketcher.Constraint("Vertical", 3))
sketch9.addConstraint(Sketcher.Constraint("Horizontal", 4))
sketch9.addConstraint(Sketcher.Constraint("Vertical", 6))
sketch9.addConstraint(Sketcher.Constraint("Horizontal", 7))
sketch9.addConstraint(Sketcher.Constraint("Vertical", 8))
sketch9.addConstraint(Sketcher.Constraint("Horizontal", 9))
sketch9.addConstraint(Sketcher.Constraint("Vertical", 10))
sketch9.addConstraint(Sketcher.Constraint("Horizontal", 12))
sketch9.addConstraint(Sketcher.Constraint("Vertical", 13))
sketch9.addConstraint(Sketcher.Constraint("Horizontal", 14))
sketch9.addConstraint(Sketcher.Constraint("Vertical", 15))
sketch9.addConstraint(Sketcher.Constraint("Horizontal", 16))
sketch9.addConstraint(Sketcher.Constraint("Vertical", 18))
sketch9.addConstraint(Sketcher.Constraint("Horizontal", 19))
sketch9.addConstraint(Sketcher.Constraint("Vertical", 20))
sketch9.addConstraint(Sketcher.Constraint("Horizontal", 21))
sketch9.addConstraint(Sketcher.Constraint("Vertical", 22))
sketch9.addConstraint(Sketcher.Constraint("Equal", 5, 11))
sketch9.addConstraint(Sketcher.Constraint("Equal", 11, 17))
sketch9.addConstraint(Sketcher.Constraint("Equal", 17, 23))
sketch9.addConstraint(Sketcher.Constraint("PointOnObject", 1, 2, -1))
sketch9.addConstraint(Sketcher.Constraint("PointOnObject", 7, 2, -2))
sketch9.addConstraint(Sketcher.Constraint("Horizontal", 11, 3, 17, 3))
sketch9.addConstraint(Sketcher.Constraint("Horizontal", 5, 3, 23, 3))
sketch9.addConstraint(Sketcher.Constraint("Horizontal", 9, 2, 18, 2))
sketch9.addConstraint(Sketcher.Constraint("Horizontal", 7, 2, 20, 2))
sketch9.addConstraint(Sketcher.Constraint("Vertical", 5, 3, 11, 3))
sketch9.addConstraint(Sketcher.Constraint("Vertical", 17, 3, 23, 3))
sketch9.addConstraint(Sketcher.Constraint("Vertical", 3, 2, 12, 2))
sketch9.addConstraint(Sketcher.Constraint("Vertical", 1, 2, 14, 2))
sketch9.addConstraint(Sketcher.Constraint("Equal", 0, 4))
sketch9.addConstraint(Sketcher.Constraint("Equal", 9, 19))
sketch9.addConstraint(Sketcher.Constraint("Equal", 21, 1))
sketch9.addConstraint(Sketcher.Constraint("Equal", 16, 6))
sketch9.addConstraint(Sketcher.Constraint("Equal", 14, 8))
sketch9.addConstraint(Sketcher.Constraint("Equal", 6, 10))
sketch9.addConstraint(Sketcher.Constraint("Equal", 3, 13))
sketch9.addConstraint(Sketcher.Constraint("DistanceY", 13, 2, -1, 1, 100.0))
sketch9.addConstraint(Sketcher.Constraint("Radius", 5, 1.5875))
sketch9.addConstraint(Sketcher.Constraint("DistanceY", 11, 3, 5, 3, 77.65))
sketch9.addConstraint(Sketcher.Constraint("DistanceX", 2, 2, 2, 1, 66.390128))
pocket2 = doc.addObject("PartDesign::Pocket", "Pocket001")
body.addObject(pocket2)
pocket2.Profile = sketch9
pocket2.Length = 7

# Sketch on XZ plane
sketch10 = doc.addObject("Sketcher::SketchObject", "Sketch009")
body.addObject(sketch10)
sketch10.AttachmentSupport = (doc.XZ_Plane, [""])
sketch10.MapMode = "FlatFace"
sketch10.AttachmentOffset = App.Placement(App.Vector(0, 0, -7), App.Rotation())
sketch10.addGeometry(Part.LineSegment(App.Vector(11.2, -90.4, 0), App.Vector(88.8, -90.4, 0)), False)
sketch10.addGeometry(Part.ArcOfCircle(Part.Circle(App.Vector(88.8, -88.8, 0), App.Vector(0, 0, 1), 1.6), math.radians(-90), math.radians(0)), False)
sketch10.addGeometry(Part.LineSegment(App.Vector(90.4, -88.8, 0), App.Vector(90.4, -11.2, 0)), False)
sketch10.addGeometry(Part.ArcOfCircle(Part.Circle(App.Vector(88.8, -11.2, 0), App.Vector(0, 0, 1), 1.6), math.radians(0), math.radians(90)), False)
sketch10.addGeometry(Part.LineSegment(App.Vector(88.8, -9.6, 0), App.Vector(11.2, -9.6, 0)), False)
sketch10.addGeometry(Part.ArcOfCircle(Part.Circle(App.Vector(11.2, -11.2, 0), App.Vector(0, 0, 1), 1.6), math.radians(90), math.radians(180)), False)
sketch10.addGeometry(Part.LineSegment(App.Vector(9.6, -11.2, 0), App.Vector(9.6, -88.8, 0)), False)
sketch10.addGeometry(Part.ArcOfCircle(Part.Circle(App.Vector(11.2, -88.8, 0), App.Vector(0, 0, 1), 1.6), math.radians(180), math.radians(270)), False)
sketch10.addConstraint(Sketcher.Constraint("Tangent", 0, 2, 1, 1))
sketch10.addConstraint(Sketcher.Constraint("Tangent", 1, 2, 2, 1))
sketch10.addConstraint(Sketcher.Constraint("Tangent", 2, 2, 3, 1))
sketch10.addConstraint(Sketcher.Constraint("Tangent", 3, 2, 4, 1))
sketch10.addConstraint(Sketcher.Constraint("Tangent", 4, 2, 5, 1))
sketch10.addConstraint(Sketcher.Constraint("Tangent", 5, 2, 6, 1))
sketch10.addConstraint(Sketcher.Constraint("Tangent", 6, 2, 7, 1))
sketch10.addConstraint(Sketcher.Constraint("Tangent", 7, 2, 0, 1))
sketch10.addConstraint(Sketcher.Constraint("Horizontal", 0))
sketch10.addConstraint(Sketcher.Constraint("Vertical", 2))
sketch10.addConstraint(Sketcher.Constraint("Horizontal", 4))
sketch10.addConstraint(Sketcher.Constraint("Vertical", 6))
sketch10.addConstraint(Sketcher.Constraint("Equal", 1, 3))
sketch10.addConstraint(Sketcher.Constraint("Equal", 3, 5))
sketch10.addConstraint(Sketcher.Constraint("Equal", 5, 7))
sketch10.addConstraint(Sketcher.Constraint("Equal", 4, 2))
sketch10.addConstraint(Sketcher.Constraint("DistanceX", 0, 1, 0, 2, 77.65))
sketch10.addConstraint(Sketcher.Constraint("Radius", 1, 1.5875))
sketch10.addConstraint(Sketcher.Constraint("DistanceX", -1, 1, 1, 3, 88.825))
sketch10.addConstraint(Sketcher.Constraint("DistanceY", 1, 3, -1, 1, 88.825))
pocket3 = doc.addObject("PartDesign::Pocket", "Pocket002")
body.addObject(pocket3)
pocket3.Profile = sketch10
pocket3.Type = "ThroughAll"
doc.recompute()

fillet = doc.addObject("PartDesign::Fillet", "Fillet")
body.addObject(fillet)
fillet.Base = (pocket3, edges_at(pocket3, [
    (0, 11.75, 0),
    (0, 15, -4.25),
    (4.25, 15, 0),
    (8.5, 15, -4.25),
    (4.25, 15, -8.5),
    (100, 11.75, 0),
    (100, 15, -4.25),
    (95.75, 15, -8.5),
    (91.5, 15, -4.25),
    (95.75, 15, 0),
    (100, 11.75, -100),
    (95.75, 15, -100),
    (91.5, 15, -95.75),
    (95.75, 15, -91.5),
    (100, 15, -95.75),
    (0, 11.75, -100),
    (0, 15, -95.75),
    (4.25, 15, -91.5),
    (8.5, 15, -95.75),
    (4.25, 15, -100),
]))
fillet.Radius = 1
doc.recompute()

fillet2 = doc.addObject("PartDesign::Fillet", "Fillet001")
body.addObject(fillet2)
fillet2.Base = (fillet, edges_at(fillet, [
    (9.588, 3.5, -83.195),
    (90.412, 3.5, -16.805),
    (90.412, 3.5, -83.195),
    (83.195, 3.5, -90.412),
    (16.805, 3.5, -90.412),
    (9.588, 3.5, -16.805),
    (16.805, 3.5, -9.588),
    (83.195, 3.5, -9.588),
]))
fillet2.Radius = 3.175
doc.recompute()

fillet3 = doc.addObject("PartDesign::Fillet", "Fillet002")
body.addObject(fillet3)
fillet3.Base = (fillet2, edges_at(fillet2, [
    (98.412, 4.25, -98.412),
    (1.587, 4.25, -1.587),
    (98.412, 4.25, -1.587),
    (1.587, 4.25, -98.412),
]))
fillet3.Radius = 0.79

# Sketch on XY plane
sketch11 = doc.addObject("Sketcher::SketchObject", "Sketch010")
body.addObject(sketch11)
sketch11.AttachmentSupport = (doc.XY_Plane, [""])
sketch11.MapMode = "FlatFace"
sketch11.AttachmentOffset = App.Placement(App.Vector(0, 0, -1.5875), App.Rotation())
sketch11.addGeometry(Part.Circle(App.Vector(9.2, 4.5, 0), App.Vector(0, 0, 1), 1.5), False)
sketch11.addConstraint(Sketcher.Constraint("Diameter", 0, 3.048))
sketch11.addConstraint(Sketcher.Constraint("DistanceY", -1, 1, 0, 3, 4.5))
sketch11.addConstraint(Sketcher.Constraint("DistanceX", -1, 1, 0, 3, 9.2475))
doc.recompute()
hole3 = doc.addObject("PartDesign::Hole", "Hole002")
body.addObject(hole3)
hole3.Profile = sketch11
hole3.ThreadType = "None"
hole3.Diameter = 3.048
hole3.DepthType = "Dimension"
hole3.Depth = 5.69
hole3.DrillPoint = "Angled"
hole3.DrillPointAngle = 118

doc.recompute()
